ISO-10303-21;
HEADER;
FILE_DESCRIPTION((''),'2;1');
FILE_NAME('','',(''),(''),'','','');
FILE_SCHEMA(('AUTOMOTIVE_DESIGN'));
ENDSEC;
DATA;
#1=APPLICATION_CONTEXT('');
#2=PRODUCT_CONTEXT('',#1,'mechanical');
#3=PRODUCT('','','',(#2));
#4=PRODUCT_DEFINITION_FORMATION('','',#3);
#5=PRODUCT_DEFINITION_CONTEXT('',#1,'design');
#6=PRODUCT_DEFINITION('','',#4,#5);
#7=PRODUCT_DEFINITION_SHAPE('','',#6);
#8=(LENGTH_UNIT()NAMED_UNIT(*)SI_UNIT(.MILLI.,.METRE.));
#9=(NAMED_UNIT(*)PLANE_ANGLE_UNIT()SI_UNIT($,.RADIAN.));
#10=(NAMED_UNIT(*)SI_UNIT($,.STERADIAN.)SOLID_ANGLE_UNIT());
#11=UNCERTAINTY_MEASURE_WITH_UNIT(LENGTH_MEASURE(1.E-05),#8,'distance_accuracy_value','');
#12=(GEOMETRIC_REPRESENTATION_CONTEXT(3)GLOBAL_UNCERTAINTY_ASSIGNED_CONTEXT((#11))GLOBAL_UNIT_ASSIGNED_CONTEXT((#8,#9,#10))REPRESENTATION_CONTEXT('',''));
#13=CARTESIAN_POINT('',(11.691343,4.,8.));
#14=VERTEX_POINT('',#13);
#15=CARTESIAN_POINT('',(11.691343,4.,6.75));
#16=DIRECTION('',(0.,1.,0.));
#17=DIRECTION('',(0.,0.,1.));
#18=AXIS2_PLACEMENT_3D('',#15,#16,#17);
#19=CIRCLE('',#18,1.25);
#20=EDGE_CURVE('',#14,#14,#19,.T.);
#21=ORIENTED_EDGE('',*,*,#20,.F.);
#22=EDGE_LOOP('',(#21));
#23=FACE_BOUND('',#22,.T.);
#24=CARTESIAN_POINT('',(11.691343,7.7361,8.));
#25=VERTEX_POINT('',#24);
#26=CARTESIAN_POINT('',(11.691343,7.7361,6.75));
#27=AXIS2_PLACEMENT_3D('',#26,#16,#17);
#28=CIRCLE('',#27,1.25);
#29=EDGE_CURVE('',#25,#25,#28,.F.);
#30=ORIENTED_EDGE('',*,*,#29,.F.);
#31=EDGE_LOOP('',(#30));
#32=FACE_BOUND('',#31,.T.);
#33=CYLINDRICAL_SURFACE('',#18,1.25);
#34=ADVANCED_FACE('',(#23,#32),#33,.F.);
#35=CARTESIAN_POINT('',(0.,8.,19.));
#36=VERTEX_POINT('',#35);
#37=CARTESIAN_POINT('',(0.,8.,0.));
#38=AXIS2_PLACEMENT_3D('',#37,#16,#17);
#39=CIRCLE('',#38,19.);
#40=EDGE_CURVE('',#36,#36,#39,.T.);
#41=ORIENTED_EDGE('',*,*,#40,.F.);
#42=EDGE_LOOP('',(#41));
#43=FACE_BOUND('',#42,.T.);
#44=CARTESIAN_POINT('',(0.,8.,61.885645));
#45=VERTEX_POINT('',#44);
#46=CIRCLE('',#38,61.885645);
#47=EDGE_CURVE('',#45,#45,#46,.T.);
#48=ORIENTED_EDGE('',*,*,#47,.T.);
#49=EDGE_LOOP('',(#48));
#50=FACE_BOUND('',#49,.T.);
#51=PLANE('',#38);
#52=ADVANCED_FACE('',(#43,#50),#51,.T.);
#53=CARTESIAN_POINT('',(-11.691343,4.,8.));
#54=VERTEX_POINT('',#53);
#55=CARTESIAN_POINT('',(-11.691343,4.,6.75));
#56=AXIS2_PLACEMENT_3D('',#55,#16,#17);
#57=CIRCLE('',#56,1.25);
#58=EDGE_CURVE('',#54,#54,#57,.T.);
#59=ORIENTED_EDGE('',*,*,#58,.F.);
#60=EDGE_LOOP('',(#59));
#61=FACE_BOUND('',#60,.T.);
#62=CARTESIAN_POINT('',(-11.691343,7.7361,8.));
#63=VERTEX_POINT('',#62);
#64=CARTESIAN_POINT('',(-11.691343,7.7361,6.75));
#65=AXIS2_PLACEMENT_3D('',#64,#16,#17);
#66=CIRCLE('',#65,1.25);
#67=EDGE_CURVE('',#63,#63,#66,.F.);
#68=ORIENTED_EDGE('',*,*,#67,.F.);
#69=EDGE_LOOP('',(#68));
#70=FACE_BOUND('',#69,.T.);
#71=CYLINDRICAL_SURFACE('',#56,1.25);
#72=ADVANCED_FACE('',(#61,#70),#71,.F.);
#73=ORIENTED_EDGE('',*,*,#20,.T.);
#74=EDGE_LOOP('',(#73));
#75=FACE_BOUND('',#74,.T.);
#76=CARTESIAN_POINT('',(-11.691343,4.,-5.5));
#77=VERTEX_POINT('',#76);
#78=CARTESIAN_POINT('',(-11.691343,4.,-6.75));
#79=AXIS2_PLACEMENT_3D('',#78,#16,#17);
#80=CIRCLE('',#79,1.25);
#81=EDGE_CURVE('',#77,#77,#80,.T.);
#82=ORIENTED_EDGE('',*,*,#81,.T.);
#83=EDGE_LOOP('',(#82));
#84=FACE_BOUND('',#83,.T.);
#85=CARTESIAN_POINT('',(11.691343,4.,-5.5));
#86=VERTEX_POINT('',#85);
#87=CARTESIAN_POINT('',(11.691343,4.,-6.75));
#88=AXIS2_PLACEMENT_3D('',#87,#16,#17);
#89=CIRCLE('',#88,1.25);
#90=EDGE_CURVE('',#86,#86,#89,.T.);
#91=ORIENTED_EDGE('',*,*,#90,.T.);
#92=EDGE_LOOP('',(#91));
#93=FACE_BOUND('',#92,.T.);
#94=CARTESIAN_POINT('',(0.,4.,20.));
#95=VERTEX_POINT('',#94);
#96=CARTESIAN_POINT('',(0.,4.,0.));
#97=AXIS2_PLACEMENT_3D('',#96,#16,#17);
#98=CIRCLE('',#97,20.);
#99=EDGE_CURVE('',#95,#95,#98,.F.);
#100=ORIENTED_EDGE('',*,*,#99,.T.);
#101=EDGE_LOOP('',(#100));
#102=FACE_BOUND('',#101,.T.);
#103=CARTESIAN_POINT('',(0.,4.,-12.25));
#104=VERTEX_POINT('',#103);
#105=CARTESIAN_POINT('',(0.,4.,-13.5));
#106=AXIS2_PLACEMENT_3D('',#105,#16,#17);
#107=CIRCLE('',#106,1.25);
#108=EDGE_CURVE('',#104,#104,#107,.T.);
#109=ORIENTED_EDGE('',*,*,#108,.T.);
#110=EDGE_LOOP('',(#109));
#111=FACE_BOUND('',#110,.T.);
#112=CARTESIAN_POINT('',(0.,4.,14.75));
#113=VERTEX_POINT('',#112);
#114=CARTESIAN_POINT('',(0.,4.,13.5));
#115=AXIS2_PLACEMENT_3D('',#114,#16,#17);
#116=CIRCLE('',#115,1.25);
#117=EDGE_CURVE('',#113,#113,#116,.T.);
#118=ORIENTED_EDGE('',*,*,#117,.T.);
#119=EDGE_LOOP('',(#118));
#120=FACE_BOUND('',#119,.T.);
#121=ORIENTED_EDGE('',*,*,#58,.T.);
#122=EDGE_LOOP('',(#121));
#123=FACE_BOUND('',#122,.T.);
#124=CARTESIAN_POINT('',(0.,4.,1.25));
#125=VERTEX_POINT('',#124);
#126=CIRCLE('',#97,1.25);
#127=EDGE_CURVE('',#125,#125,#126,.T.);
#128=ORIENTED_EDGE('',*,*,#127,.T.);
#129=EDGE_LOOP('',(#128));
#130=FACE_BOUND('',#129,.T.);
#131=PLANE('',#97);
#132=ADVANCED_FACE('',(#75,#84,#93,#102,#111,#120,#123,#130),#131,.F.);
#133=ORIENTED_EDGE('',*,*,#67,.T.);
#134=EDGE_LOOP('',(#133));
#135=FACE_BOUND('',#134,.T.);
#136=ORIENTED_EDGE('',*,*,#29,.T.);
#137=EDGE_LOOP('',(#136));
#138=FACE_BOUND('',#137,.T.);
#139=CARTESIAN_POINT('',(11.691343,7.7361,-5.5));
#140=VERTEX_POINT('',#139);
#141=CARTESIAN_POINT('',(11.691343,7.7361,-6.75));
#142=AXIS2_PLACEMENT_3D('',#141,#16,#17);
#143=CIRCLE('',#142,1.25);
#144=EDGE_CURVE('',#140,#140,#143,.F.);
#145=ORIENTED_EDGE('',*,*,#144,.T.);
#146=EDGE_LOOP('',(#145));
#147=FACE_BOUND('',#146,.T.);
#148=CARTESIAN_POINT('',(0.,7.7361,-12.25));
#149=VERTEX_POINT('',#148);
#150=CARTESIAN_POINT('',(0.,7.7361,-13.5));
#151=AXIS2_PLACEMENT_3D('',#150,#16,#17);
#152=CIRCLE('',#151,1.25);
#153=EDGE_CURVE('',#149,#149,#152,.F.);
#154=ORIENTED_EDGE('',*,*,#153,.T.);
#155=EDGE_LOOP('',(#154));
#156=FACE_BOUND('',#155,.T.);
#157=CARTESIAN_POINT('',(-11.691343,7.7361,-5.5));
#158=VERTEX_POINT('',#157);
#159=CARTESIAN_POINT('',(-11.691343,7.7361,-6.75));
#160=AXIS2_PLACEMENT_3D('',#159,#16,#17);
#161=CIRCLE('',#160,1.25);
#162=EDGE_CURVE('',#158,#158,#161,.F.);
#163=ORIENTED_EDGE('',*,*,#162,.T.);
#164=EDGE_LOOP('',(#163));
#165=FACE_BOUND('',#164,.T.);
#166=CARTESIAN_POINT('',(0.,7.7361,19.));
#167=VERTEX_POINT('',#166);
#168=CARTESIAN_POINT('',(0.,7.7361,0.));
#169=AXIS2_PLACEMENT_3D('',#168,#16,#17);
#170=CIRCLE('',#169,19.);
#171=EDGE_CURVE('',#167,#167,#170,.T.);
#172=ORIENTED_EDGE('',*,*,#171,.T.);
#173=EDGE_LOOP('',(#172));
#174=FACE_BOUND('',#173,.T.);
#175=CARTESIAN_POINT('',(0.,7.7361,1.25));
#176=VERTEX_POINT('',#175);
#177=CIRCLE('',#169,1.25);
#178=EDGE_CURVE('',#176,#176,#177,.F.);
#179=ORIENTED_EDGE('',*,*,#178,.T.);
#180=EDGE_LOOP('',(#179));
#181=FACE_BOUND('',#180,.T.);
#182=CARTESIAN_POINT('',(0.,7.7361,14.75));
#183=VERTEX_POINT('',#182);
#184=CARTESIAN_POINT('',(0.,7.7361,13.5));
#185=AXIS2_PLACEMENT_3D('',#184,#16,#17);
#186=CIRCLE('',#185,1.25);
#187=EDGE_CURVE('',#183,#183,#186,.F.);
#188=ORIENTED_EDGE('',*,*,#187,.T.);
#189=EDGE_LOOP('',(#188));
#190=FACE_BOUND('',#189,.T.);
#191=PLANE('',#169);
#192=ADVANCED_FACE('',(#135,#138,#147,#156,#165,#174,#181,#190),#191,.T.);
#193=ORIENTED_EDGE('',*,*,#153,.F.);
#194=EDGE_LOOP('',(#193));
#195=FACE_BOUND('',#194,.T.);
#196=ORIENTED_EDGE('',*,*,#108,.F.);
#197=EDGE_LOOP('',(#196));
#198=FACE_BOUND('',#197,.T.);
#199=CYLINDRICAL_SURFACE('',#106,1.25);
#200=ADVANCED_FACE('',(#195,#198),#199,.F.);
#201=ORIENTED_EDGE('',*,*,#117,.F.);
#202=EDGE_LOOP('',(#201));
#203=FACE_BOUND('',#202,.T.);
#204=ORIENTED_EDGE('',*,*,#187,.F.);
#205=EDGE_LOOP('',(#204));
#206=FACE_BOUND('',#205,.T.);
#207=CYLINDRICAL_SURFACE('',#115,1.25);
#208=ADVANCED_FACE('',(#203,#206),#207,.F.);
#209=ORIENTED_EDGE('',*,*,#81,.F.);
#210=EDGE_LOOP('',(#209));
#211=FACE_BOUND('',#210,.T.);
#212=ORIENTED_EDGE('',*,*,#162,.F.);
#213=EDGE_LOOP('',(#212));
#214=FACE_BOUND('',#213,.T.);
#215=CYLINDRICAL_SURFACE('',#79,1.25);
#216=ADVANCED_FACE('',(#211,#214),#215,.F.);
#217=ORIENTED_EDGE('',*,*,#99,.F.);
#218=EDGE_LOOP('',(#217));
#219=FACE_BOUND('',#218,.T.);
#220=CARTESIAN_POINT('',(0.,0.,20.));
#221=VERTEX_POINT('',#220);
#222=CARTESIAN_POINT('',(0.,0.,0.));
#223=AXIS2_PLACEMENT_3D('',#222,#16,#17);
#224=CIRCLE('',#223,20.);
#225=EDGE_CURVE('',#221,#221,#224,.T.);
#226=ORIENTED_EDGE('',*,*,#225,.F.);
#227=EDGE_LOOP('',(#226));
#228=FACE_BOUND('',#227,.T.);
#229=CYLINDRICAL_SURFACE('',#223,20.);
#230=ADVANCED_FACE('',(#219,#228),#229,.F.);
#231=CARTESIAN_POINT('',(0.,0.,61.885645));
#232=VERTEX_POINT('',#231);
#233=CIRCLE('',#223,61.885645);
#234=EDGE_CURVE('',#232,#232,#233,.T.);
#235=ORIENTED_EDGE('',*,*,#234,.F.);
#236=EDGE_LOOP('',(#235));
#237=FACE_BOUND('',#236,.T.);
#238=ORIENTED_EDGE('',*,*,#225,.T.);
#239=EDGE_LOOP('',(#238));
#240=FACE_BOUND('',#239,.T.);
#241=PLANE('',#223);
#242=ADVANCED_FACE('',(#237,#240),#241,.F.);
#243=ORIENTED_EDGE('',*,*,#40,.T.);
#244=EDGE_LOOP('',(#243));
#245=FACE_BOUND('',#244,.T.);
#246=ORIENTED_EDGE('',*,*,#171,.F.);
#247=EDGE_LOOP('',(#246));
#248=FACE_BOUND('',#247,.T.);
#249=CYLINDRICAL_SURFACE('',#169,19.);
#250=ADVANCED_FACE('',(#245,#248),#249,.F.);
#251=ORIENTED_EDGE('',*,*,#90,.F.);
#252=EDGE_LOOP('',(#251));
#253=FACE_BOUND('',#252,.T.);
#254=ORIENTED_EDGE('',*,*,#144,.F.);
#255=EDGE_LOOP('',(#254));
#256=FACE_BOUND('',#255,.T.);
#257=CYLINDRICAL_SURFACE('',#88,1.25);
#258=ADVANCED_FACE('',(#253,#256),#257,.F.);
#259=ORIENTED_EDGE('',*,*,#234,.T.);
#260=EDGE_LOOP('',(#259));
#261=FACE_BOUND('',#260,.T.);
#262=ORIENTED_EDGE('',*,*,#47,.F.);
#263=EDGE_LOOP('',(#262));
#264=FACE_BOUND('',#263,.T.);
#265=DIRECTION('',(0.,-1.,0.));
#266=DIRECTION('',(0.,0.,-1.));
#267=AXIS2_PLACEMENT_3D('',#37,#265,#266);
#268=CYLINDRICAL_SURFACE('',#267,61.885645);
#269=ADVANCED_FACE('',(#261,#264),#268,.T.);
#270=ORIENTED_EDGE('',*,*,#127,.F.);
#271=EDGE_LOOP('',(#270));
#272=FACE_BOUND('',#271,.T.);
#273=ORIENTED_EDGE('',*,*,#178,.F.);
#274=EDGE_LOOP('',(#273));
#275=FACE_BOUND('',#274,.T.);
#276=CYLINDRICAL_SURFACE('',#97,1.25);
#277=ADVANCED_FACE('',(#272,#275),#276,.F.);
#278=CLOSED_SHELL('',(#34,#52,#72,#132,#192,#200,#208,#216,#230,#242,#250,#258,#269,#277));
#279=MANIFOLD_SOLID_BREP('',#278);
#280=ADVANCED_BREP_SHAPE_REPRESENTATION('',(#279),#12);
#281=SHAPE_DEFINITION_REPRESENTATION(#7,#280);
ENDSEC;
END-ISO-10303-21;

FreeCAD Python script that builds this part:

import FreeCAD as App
import Part
import Sketcher
from FreeCAD import Vector
Q = App.Units.Quantity

doc = App.newDocument("Part")
params = doc.addObject("Spreadsheet::Sheet", "Params")
for row, (alias, value) in enumerate([
    ("pad1_length", "8 mm"),
    ("sketch2_diameter", "40 mm"),
    ("pocket1_length", "8 mm"),
    ("sketch3_diameter", "40 mm"),
    ("pad2_length", "4 mm"),
    ("sketch4_diameter", "38 mm"),
    ("pad3_length", "8.1661 mm"),
    ("sketch5_diameter", "2.5 mm"),
    ("pocket2_length", "8.1661 mm"),
    ("sketch6_diameter", "2.5 mm"),
    ("pocket3_length", "8.1661 mm"),
    ("sketch7_diameter", "38 mm"),
    ("pocket4_length", "4.43 mm"),
], start=1):
    params.set(f"A{row}", alias)
    params.set(f"B{row}", "=" + value)
    params.setAlias(f"B{row}", alias)

body = doc.addObject("PartDesign::Body", "Body")

# Sketch on XZ plane
sketch1 = body.newObject("Sketcher::SketchObject", "Sketch")
sketch1.AttachmentSupport = (doc.getObject("XZ_Plane"), [""])
sketch1.MapMode = "FlatFace"
sketch1.addGeometry(Part.Circle(Vector(0, 0, 0), Vector(0, 0, 1), 62), False)
sketch1.addConstraint(Sketcher.Constraint("Coincident", 0, 3, -1, 1))
sketch1.addConstraint(Sketcher.Constraint("Diameter", 0, Q("123.77129 mm")))
pad1 = body.newObject("PartDesign::Pad", "Pad")
pad1.Profile = sketch1
pad1.setExpression("Length", "Params.pad1_length")
pad1.Reversed = True

# Sketch on XZ plane
sketch2 = body.newObject("Sketcher::SketchObject", "Sketch001")
sketch2.AttachmentSupport = (doc.getObject("XZ_Plane"), [""])
sketch2.MapMode = "FlatFace"
sketch2.AttachmentOffset = App.Placement(Vector(0, 0, -8), App.Rotation())
sketch2.addGeometry(Part.Circle(Vector(0, 0, 0), Vector(0, 0, 1), 20), False)
sketch2.addConstraint(Sketcher.Constraint("Coincident", 0, 3, -1, 1))
sketch2.addConstraint(Sketcher.Constraint("Diameter", 0, Q("40 mm")))
sketch2.setExpression("Constraints[1]", "Params.sketch2_diameter")
pocket1 = body.newObject("PartDesign::Pocket", "Pocket")
pocket1.Profile = sketch2
pocket1.setExpression("Length", "Params.pocket1_length")
pocket1.Reversed = True

# Sketch on XZ plane
sketch3 = body.newObject("Sketcher::SketchObject", "Sketch002")
sketch3.AttachmentSupport = (doc.getObject("XZ_Plane"), [""])
sketch3.MapMode = "FlatFace"
sketch3.AttachmentOffset = App.Placement(Vector(0, 0, -8), App.Rotation())
sketch3.addGeometry(Part.Circle(Vector(0, 0, 0), Vector(0, 0, 1), 20), False)
sketch3.addConstraint(Sketcher.Constraint("Coincident", 0, 3, -1, 1))
sketch3.addConstraint(Sketcher.Constraint("Diameter", 0, Q("40 mm")))
sketch3.setExpression("Constraints[1]", "Params.sketch3_diameter")
pad2 = body.newObject("PartDesign::Pad", "Pad001")
pad2.Profile = sketch3
pad2.setExpression("Length", "Params.pad2_length")

# Sketch on XZ plane
sketch4 = body.newObject("Sketcher::SketchObject", "Sketch003")
sketch4.AttachmentSupport = (doc.getObject("XZ_Plane"), [""])
sketch4.MapMode = "FlatFace"
sketch4.AttachmentOffset = App.Placement(Vector(0, 0, -4), App.Rotation())
sketch4.addGeometry(Part.Circle(Vector(0, 0, 0), Vector(0, 0, 1), 19), False)
sketch4.addConstraint(Sketcher.Constraint("Coincident", 0, 3, -1, 1))
sketch4.addConstraint(Sketcher.Constraint("Diameter", 0, Q("38 mm")))
sketch4.setExpression("Constraints[1]", "Params.sketch4_diameter")
pad3 = body.newObject("PartDesign::Pad", "Pad002")
pad3.Profile = sketch4
pad3.setExpression("Length", "Params.pad3_length")
pad3.Reversed = True

# Sketch on XZ plane
sketch5 = body.newObject("Sketcher::SketchObject", "Sketch004")
sketch5.AttachmentSupport = (doc.getObject("XZ_Plane"), [""])
sketch5.MapMode = "FlatFace"
sketch5.AttachmentOffset = App.Placement(Vector(0, 0, -12.1661), App.Rotation())
sketch5.addGeometry(Part.Circle(Vector(11.7, -6.8, 0), Vector(0, 0, 1), 1.2), False)
sketch5.addGeometry(Part.Circle(Vector(0, -13.5, 0), Vector(0, 0, 1), 1.2), False)
sketch5.addGeometry(Part.Circle(Vector(-11.7, -6.8, 0), Vector(0, 0, 1), 1.2), False)
sketch5.addGeometry(Part.Circle(Vector(-11.7, 6.8, 0), Vector(0, 0, 1), 1.2), False)
sketch5.addGeometry(Part.Circle(Vector(0, 13.5, 0), Vector(0, 0, 1), 1.2), False)
sketch5.addGeometry(Part.Circle(Vector(11.7, 6.8, 0), Vector(0, 0, 1), 1.2), False)
sketch5.addConstraint(Sketcher.Constraint("Equal", 0, 1))
sketch5.addConstraint(Sketcher.Constraint("Equal", 1, 2))
sketch5.addConstraint(Sketcher.Constraint("Equal", 2, 3))
sketch5.addConstraint(Sketcher.Constraint("Equal", 3, 4))
sketch5.addConstraint(Sketcher.Constraint("Equal", 4, 5))
sketch5.addConstraint(Sketcher.Constraint("Symmetric", 0, 3, 3, 3, -1, 1))
sketch5.addConstraint(Sketcher.Constraint("Symmetric", 1, 3, 4, 3, -1, 1))
sketch5.addConstraint(Sketcher.Constraint("Symmetric", 2, 3, 5, 3, -1, 1))
sketch5.addConstraint(Sketcher.Constraint("Symmetric", 0, 3, 2, 3, -2))
sketch5.addConstraint(Sketcher.Constraint("PointOnObject", 1, 3, -2))
sketch5.addConstraint(Sketcher.Constraint("Diameter", 0, Q("2.5 mm")))
sketch5.addConstraint(Sketcher.Constraint("DistanceY", 1, 3, 4, 3, Q("27 mm")))
sketch5.addConstraint(Sketcher.Constraint("DistanceY", 2, 3, 3, 3, Q("13.5 mm")))
sketch5.addConstraint(Sketcher.Constraint("DistanceX", -1, 1, 0, 3, Q("11.691343 mm")))
sketch5.setExpression("Constraints[10]", "Params.sketch5_diameter")
pocket2 = body.newObject("PartDesign::Pocket", "Pocket001")
pocket2.Profile = sketch5
pocket2.setExpression("Length", "Params.pocket2_length")
pocket2.Reversed = True

# Sketch on XZ plane
sketch6 = body.newObject("Sketcher::SketchObject", "Sketch005")
sketch6.AttachmentSupport = (doc.getObject("XZ_Plane"), [""])
sketch6.MapMode = "FlatFace"
sketch6.AttachmentOffset = App.Placement(Vector(0, 0, -12.1661), App.Rotation())
sketch6.addGeometry(Part.Circle(Vector(0, 0, 0), Vector(0, 0, 1), 1.2), False)
sketch6.addConstraint(Sketcher.Constraint("Coincident", 0, 3, -1, 1))
sketch6.addConstraint(Sketcher.Constraint("Diameter", 0, Q("2.5 mm")))
sketch6.setExpression("Constraints[1]", "Params.sketch6_diameter")
pocket3 = body.newObject("PartDesign::Pocket", "Pocket002")
pocket3.Profile = sketch6
pocket3.setExpression("Length", "Params.pocket3_length")
pocket3.Reversed = True

# Sketch on XZ plane
sketch7 = body.newObject("Sketcher::SketchObject", "Sketch006")
sketch7.AttachmentSupport = (doc.getObject("XZ_Plane"), [""])
sketch7.MapMode = "FlatFace"
sketch7.AttachmentOffset = App.Placement(Vector(0, 0, -12.1661), App.Rotation())
sketch7.addGeometry(Part.Circle(Vector(0, 0, 0), Vector(0, 0, 1), 19), False)
sketch7.addConstraint(Sketcher.Constraint("Coincident", 0, 3, -1, 1))
sketch7.addConstraint(Sketcher.Constraint("Diameter", 0, Q("38 mm")))
sketch7.setExpression("Constraints[1]", "Params.sketch7_diameter")
pocket4 = body.newObject("PartDesign::Pocket", "Pocket003")
pocket4.Profile = sketch7
pocket4.setExpression("Length", "Params.pocket4_length")
pocket4.Reversed = True

doc.recompute()
